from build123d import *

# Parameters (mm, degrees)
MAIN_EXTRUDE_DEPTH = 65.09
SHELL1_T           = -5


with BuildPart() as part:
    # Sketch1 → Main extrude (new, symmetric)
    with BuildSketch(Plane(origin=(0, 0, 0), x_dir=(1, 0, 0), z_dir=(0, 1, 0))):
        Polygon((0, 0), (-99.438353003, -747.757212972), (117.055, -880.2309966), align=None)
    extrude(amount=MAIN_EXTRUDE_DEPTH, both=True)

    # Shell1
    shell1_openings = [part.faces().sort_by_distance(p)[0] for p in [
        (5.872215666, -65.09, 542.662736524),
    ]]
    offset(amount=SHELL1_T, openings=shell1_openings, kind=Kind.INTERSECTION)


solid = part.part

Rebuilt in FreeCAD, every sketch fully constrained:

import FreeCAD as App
import Part
import Sketcher


def faces_at(feature, points):
    """Names of the faces that lie closest to the given points."""
    faces = feature.Shape.Faces
    near = lambda p: min(range(len(faces)), key=lambda i: faces[i].distToShape(Part.Vertex(*p))[0])
    return sorted({f"Face{near(p) + 1}" for p in points})

doc = App.newDocument("Part")
body = doc.addObject("PartDesign::Body", "Body")

sketch1 = body.newObject("Sketcher::SketchObject", "Sketch")
sketch1.AttachmentSupport = (doc.getObject("XZ_Plane"), [""])
sketch1.MapMode = "FlatFace"
sketch1.addGeometry(Part.LineSegment(App.Vector(0, 0, 0), App.Vector(-99, 748, 0)), False)
sketch1.addGeometry(Part.LineSegment(App.Vector(-99, 748, 0), App.Vector(117, 880, 0)), False)
sketch1.addGeometry(Part.LineSegment(App.Vector(117, 880, 0), App.Vector(0, 0, 0)), False)
sketch1.addConstraint(Sketcher.Constraint("Coincident", 0, 2, 1, 1))
sketch1.addConstraint(Sketcher.Constraint("Coincident", 1, 2, 2, 1))
sketch1.addConstraint(Sketcher.Constraint("Coincident", 2, 2, 0, 1))
sketch1.addConstraint(Sketcher.Constraint("Coincident", 2, 2, -1, 1))
sketch1.addConstraint(Sketcher.Constraint("Distance", 0, 754.34))
sketch1.addConstraint(Sketcher.Constraint("Distance", 2, 887.98))
sketch1.addConstraint(Sketcher.Constraint("DistanceX", -1, 1, 1, 2, 117.055))
sketch1.addConstraint(Sketcher.Constraint("Distance", 1, 253.808344))
pad1 = body.newObject("PartDesign::Pad", "Pad")
pad1.Profile = sketch1
pad1.Length = 130.18
pad1.Midplane = True
doc.recompute()

thickness = body.newObject("PartDesign::Thickness", "Thickness")
thickness.Base = (pad1, faces_at(pad1, [(8.808, -65.09, 440.115)]))
thickness.Value = 5
thickness.Reversed = True
thickness.Join = "Intersection"

doc.recompute()
